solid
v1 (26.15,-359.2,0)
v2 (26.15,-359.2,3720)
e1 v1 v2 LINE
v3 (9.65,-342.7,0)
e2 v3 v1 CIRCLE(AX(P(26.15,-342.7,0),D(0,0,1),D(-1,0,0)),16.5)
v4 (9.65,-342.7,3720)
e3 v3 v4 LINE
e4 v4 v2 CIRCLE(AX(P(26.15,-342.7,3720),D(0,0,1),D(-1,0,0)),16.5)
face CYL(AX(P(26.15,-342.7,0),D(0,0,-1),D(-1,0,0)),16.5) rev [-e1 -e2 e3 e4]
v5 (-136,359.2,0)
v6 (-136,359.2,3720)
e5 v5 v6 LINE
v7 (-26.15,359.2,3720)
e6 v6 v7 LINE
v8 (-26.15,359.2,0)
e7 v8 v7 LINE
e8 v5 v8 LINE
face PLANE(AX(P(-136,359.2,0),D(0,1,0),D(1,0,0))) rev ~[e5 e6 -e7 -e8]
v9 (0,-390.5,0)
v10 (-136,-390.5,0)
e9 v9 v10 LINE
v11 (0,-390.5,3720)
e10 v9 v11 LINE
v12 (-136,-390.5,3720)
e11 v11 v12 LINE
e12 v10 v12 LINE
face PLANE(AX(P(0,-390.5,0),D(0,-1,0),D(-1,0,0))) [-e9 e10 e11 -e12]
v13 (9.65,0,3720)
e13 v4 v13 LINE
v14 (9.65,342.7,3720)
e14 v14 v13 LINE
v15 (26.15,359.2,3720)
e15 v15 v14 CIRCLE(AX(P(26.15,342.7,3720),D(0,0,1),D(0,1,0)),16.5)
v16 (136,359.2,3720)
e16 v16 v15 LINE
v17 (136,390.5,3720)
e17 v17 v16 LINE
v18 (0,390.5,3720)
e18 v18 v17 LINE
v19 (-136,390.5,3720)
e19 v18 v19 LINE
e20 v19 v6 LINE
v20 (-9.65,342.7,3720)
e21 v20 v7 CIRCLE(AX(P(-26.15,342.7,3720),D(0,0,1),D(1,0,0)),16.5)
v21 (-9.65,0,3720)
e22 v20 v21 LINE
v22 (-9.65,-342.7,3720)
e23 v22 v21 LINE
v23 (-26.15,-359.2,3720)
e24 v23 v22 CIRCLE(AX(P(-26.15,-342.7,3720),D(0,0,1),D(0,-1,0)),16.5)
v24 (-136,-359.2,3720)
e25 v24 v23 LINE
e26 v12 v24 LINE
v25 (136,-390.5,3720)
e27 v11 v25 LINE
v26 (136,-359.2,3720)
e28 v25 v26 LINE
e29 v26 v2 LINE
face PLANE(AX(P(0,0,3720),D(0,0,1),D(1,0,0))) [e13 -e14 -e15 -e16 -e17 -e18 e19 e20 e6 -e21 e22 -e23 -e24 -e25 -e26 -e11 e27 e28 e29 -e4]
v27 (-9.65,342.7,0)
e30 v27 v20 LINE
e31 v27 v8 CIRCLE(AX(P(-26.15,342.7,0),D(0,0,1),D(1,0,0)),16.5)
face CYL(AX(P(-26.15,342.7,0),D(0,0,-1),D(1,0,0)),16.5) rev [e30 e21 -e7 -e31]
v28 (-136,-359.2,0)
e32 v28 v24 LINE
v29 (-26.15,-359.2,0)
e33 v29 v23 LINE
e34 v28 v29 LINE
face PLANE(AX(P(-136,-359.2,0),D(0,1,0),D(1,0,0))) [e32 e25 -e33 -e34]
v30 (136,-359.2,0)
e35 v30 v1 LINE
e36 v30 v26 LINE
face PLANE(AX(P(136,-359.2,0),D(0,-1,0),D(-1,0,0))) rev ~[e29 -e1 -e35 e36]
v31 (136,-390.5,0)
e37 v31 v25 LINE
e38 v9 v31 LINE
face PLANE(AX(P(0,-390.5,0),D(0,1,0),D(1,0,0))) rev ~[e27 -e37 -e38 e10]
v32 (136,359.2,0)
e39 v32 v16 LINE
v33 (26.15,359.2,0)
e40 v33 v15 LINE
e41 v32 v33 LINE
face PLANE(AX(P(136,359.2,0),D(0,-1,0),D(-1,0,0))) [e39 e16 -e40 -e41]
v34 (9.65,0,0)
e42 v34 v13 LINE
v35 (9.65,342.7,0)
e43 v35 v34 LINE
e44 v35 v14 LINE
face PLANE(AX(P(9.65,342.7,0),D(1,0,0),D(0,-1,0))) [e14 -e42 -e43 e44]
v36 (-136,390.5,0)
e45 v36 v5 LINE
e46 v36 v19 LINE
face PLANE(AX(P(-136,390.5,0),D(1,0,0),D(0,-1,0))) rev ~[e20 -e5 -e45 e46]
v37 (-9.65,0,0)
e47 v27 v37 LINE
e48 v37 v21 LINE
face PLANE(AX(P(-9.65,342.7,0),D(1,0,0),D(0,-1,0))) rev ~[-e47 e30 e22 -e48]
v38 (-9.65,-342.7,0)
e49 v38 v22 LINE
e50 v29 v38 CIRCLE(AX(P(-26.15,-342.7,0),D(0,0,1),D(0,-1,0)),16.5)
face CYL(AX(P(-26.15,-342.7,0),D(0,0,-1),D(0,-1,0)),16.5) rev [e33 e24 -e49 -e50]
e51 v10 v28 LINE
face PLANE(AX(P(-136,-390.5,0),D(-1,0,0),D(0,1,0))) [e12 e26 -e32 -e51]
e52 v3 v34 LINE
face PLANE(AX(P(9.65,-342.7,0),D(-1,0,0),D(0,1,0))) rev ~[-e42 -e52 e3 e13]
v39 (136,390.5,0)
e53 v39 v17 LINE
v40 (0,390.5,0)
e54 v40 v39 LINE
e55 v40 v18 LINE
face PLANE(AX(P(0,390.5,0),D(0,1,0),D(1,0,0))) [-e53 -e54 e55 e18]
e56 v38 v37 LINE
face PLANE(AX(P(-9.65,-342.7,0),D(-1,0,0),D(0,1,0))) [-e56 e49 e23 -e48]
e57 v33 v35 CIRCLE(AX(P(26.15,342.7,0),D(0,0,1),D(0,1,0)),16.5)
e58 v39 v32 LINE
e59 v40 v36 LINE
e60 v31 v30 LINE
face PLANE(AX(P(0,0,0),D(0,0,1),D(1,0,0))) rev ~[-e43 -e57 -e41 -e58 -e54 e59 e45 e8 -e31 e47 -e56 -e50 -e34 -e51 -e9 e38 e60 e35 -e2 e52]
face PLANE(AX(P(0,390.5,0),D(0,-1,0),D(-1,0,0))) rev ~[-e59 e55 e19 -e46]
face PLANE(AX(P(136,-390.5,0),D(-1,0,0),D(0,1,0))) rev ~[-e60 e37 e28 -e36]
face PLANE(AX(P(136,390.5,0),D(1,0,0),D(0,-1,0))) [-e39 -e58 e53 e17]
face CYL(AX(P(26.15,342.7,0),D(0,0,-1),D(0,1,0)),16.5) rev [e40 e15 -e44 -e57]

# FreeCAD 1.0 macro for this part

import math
import FreeCAD as App
import Part
import Sketcher

V = App.Vector

doc = App.newDocument("Part")
body = doc.addObject("PartDesign::Body", "Body")

# Sketch on XY plane
sketch1 = body.newObject("Sketcher::SketchObject", "Sketch")
sketch1.AttachmentSupport = (doc.getObject("XY_Plane"), [""])
sketch1.MapMode = "FlatFace"
sketch1.addGeometry([
    Part.LineSegment(V(-136, -359, 0), V(-136, -390, 0)),  # 0
    Part.LineSegment(V(-136, -390, 0), V(136, -390, 0)),  # 1
    Part.LineSegment(V(136, -390, 0), V(136, -359, 0)),  # 2
    Part.LineSegment(V(136, -359, 0), V(26, -359, 0)),  # 3
    Part.ArcOfCircle(Part.Circle(V(26, -343, 0), V(0, 0, 1), 16), math.radians(180), math.radians(270)),  # 4
    Part.LineSegment(V(10, -343, 0), V(10, 343, 0)),  # 5
    Part.ArcOfCircle(Part.Circle(V(26, 343, 0), V(0, 0, 1), 16), math.radians(90), math.radians(180)),  # 6
    Part.LineSegment(V(26, 359, 0), V(136, 359, 0)),  # 7
    Part.LineSegment(V(136, 359, 0), V(136, 390, 0)),  # 8
    Part.LineSegment(V(136, 390, 0), V(-136, 390, 0)),  # 9
    Part.LineSegment(V(-136, 390, 0), V(-136, 359, 0)),  # 10
    Part.LineSegment(V(-136, 359, 0), V(-26, 359, 0)),  # 11
    Part.ArcOfCircle(Part.Circle(V(-26, 343, 0), V(0, 0, 1), 16), math.radians(0), math.radians(90)),  # 12
    Part.LineSegment(V(-10, 343, 0), V(-10, -343, 0)),  # 13
    Part.ArcOfCircle(Part.Circle(V(-26, -343, 0), V(0, 0, 1), 16), math.radians(-90), math.radians(0)),  # 14
    Part.LineSegment(V(-26, -359, 0), V(-136, -359, 0)),  # 15
], False)
sketch1.addConstraint([
    Sketcher.Constraint("Coincident", 0, 2, 1, 1),
    Sketcher.Constraint("Coincident", 1, 2, 2, 1),
    Sketcher.Constraint("Coincident", 2, 2, 3, 1),
    Sketcher.Constraint("Tangent", 3, 2, 4, 2),
    Sketcher.Constraint("Tangent", 4, 1, 5, 1),
    Sketcher.Constraint("Tangent", 5, 2, 6, 2),
    Sketcher.Constraint("Tangent", 6, 1, 7, 1),
    Sketcher.Constraint("Coincident", 7, 2, 8, 1),
    Sketcher.Constraint("Coincident", 8, 2, 9, 1),
    Sketcher.Constraint("Coincident", 9, 2, 10, 1),
    Sketcher.Constraint("Coincident", 10, 2, 11, 1),
    Sketcher.Constraint("Tangent", 11, 2, 12, 2),
    Sketcher.Constraint("Tangent", 12, 1, 13, 1),
    Sketcher.Constraint("Tangent", 13, 2, 14, 2),
    Sketcher.Constraint("Tangent", 14, 1, 15, 1),
    Sketcher.Constraint("Coincident", 15, 2, 0, 1),
    Sketcher.Constraint("Vertical", 0),
    Sketcher.Constraint("Horizontal", 1),
    Sketcher.Constraint("Vertical", 2),
    Sketcher.Constraint("Horizontal", 3),
    Sketcher.Constraint("Vertical", 5),
    Sketcher.Constraint("Horizontal", 7),
    Sketcher.Constraint("Vertical", 8),
    Sketcher.Constraint("Horizontal", 9),
    Sketcher.Constraint("Vertical", 10),
    Sketcher.Constraint("Horizontal", 11),
    Sketcher.Constraint("Vertical", 13),
    Sketcher.Constraint("Horizontal", 15),
    Sketcher.Constraint("Equal", 4, 6),
    Sketcher.Constraint("Equal", 6, 12),
    Sketcher.Constraint("Equal", 12, 14),
    Sketcher.Constraint("Symmetric", 4, 3, 12, 3, -1, 1),
    Sketcher.Constraint("Symmetric", 0, 2, 8, 2, -1, 1),
    Sketcher.Constraint("Symmetric", 7, 2, 10, 2, -2),
    Sketcher.Constraint("Symmetric", 2, 2, 15, 2, -2),
    Sketcher.Constraint("Radius", 4, 16.5),
    Sketcher.Constraint("DistanceY", 0, 2, 0, 1, 31.3),
    Sketcher.Constraint("DistanceX", 0, 2, -1, 1, 136.0),
    Sketcher.Constraint("DistanceY", 0, 2, -1, 1, 390.5),
    Sketcher.Constraint("DistanceX", -1, 1, 4, 1, 9.65),
])
pad1 = body.newObject("PartDesign::Pad", "Pad")
pad1.Profile = sketch1
pad1.Length = 3720

doc.recompute()
